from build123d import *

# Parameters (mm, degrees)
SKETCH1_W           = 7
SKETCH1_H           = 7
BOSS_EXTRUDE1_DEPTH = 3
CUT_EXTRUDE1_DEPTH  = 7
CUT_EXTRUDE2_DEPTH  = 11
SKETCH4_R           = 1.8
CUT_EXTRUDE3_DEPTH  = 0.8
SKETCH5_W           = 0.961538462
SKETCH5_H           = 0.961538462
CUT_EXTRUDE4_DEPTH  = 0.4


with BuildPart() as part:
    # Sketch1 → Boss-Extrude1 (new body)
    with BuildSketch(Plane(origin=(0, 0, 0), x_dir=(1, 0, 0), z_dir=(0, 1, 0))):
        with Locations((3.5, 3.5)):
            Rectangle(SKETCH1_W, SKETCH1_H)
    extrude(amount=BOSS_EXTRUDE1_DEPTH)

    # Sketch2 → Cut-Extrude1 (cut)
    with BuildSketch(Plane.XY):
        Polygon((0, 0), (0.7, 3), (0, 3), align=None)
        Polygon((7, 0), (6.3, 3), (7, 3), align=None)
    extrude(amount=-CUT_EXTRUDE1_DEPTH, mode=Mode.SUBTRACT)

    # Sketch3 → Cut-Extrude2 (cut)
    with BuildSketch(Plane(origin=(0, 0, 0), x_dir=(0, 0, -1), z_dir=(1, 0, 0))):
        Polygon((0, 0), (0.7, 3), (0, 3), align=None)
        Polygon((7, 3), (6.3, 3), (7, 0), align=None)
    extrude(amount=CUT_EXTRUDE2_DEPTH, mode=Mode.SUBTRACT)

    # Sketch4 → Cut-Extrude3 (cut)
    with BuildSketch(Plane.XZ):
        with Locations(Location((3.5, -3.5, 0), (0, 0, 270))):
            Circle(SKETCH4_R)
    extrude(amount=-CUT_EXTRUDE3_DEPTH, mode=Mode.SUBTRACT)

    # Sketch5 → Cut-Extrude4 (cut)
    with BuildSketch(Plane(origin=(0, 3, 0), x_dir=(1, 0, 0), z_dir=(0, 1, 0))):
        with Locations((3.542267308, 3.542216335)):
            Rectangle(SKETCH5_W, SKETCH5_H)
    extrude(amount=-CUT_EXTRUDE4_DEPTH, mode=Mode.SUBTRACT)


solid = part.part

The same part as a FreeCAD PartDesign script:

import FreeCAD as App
import Part
import Sketcher

V = App.Vector

doc = App.newDocument("Part")
params = doc.addObject("Spreadsheet::Sheet", "Params")
for row, (alias, value) in enumerate([
    ("sketch1_width", "7 mm"),
    ("pad1_length", "3 mm"),
    ("sketch2_height", "3 mm"),
    ("sketch2_width", "0.7 mm"),
    ("pocket1_length", "7 mm"),
    ("sketch3_width", "3 mm"),
    ("sketch3_height", "0.7 mm"),
    ("pocket2_length", "11 mm"),
    ("sketch4_diameter", "3.6 mm"),
    ("pocket3_length", "0.8 mm"),
    ("pocket4_length", "0.4 mm"),
], start=1):
    params.set(f"A{row}", alias)
    params.set(f"B{row}", "=" + value)
    params.setAlias(f"B{row}", alias)

body = doc.addObject("PartDesign::Body", "Body")

sketch1 = body.newObject("Sketcher::SketchObject", "Sketch")
sketch1.AttachmentSupport = (doc.getObject("XZ_Plane"), [""])
sketch1.MapMode = "FlatFace"
sketch1.addGeometry([
    Part.LineSegment(V(0, -7, 0), V(0, 0, 0)),
    Part.LineSegment(V(0, 0, 0), V(7, 0, 0)),
    Part.LineSegment(V(7, 0, 0), V(7, -7, 0)),
    Part.LineSegment(V(7, -7, 0), V(0, -7, 0)),
], False)
sketch1.addConstraint([
    Sketcher.Constraint("Coincident", 0, 2, 1, 1),
    Sketcher.Constraint("Coincident", 1, 2, 2, 1),
    Sketcher.Constraint("Coincident", 2, 2, 3, 1),
    Sketcher.Constraint("Coincident", 3, 2, 0, 1),
    Sketcher.Constraint("Vertical", 0),
    Sketcher.Constraint("Horizontal", 1),
    Sketcher.Constraint("Vertical", 2),
    Sketcher.Constraint("Horizontal", 3),
    Sketcher.Constraint("Coincident", 0, 2, -1, 1),
    Sketcher.Constraint("Equal", 3, 0),
    Sketcher.Constraint("DistanceX", 1, 1, 1, 2, 7.0),
])
sketch1.setExpression("Constraints[10]", "Params.sketch1_width")
pad1 = body.newObject("PartDesign::Pad", "Pad")
pad1.Profile = sketch1
pad1.setExpression("Length", "Params.pad1_length")
pad1.Reversed = True

sketch2 = body.newObject("Sketcher::SketchObject", "Sketch001")
sketch2.AttachmentSupport = (doc.getObject("XY_Plane"), [""])
sketch2.MapMode = "FlatFace"
sketch2.addGeometry([
    Part.LineSegment(V(0, 0, 0), V(0.7, 3, 0)),
    Part.LineSegment(V(0.7, 3, 0), V(0, 3, 0)),
    Part.LineSegment(V(0, 3, 0), V(0, 0, 0)),
    Part.LineSegment(V(6.3, 3, 0), V(7, 0, 0)),
    Part.LineSegment(V(7, 0, 0), V(7, 3, 0)),
    Part.LineSegment(V(7, 3, 0), V(6.3, 3, 0)),
], False)
sketch2.addConstraint([
    Sketcher.Constraint("Coincident", 0, 2, 1, 1),
    Sketcher.Constraint("Coincident", 1, 2, 2, 1),
    Sketcher.Constraint("Coincident", 2, 2, 0, 1),
    Sketcher.Constraint("Coincident", 3, 2, 4, 1),
    Sketcher.Constraint("Coincident", 4, 2, 5, 1),
    Sketcher.Constraint("Coincident", 5, 2, 3, 1),
    Sketcher.Constraint("Horizontal", 1),
    Sketcher.Constraint("Vertical", 2),
    Sketcher.Constraint("Vertical", 4),
    Sketcher.Constraint("Horizontal", 5),
    Sketcher.Constraint("Coincident", 2, 2, -1, 1),
    Sketcher.Constraint("PointOnObject", 3, 2, -1),
    Sketcher.Constraint("Horizontal", 1, 2, 4, 2),
    Sketcher.Constraint("Equal", 1, 5),
    Sketcher.Constraint("DistanceY", 2, 2, 2, 1, 3.0),
    Sketcher.Constraint("DistanceX", 1, 2, 1, 1, 0.7),
    Sketcher.Constraint("DistanceX", -1, 1, 3, 2, 7.0),
])
sketch2.setExpression("Constraints[14]", "Params.sketch2_height")
sketch2.setExpression("Constraints[15]", "Params.sketch2_width")
pocket1 = body.newObject("PartDesign::Pocket", "Pocket")
pocket1.Profile = sketch2
pocket1.setExpression("Length", "Params.pocket1_length")

sketch3 = body.newObject("Sketcher::SketchObject", "Sketch002")
sketch3.AttachmentSupport = (doc.getObject("YZ_Plane"), [""])
sketch3.MapMode = "FlatFace"
sketch3.addGeometry([
    Part.LineSegment(V(0, 0, 0), V(3, -0.7, 0)),
    Part.LineSegment(V(3, -0.7, 0), V(3, 0, 0)),
    Part.LineSegment(V(3, 0, 0), V(0, 0, 0)),
    Part.LineSegment(V(3, -7, 0), V(3, -6.3, 0)),
    Part.LineSegment(V(3, -6.3, 0), V(0, -7, 0)),
    Part.LineSegment(V(0, -7, 0), V(3, -7, 0)),
], False)
sketch3.addConstraint([
    Sketcher.Constraint("Coincident", 0, 2, 1, 1),
    Sketcher.Constraint("Coincident", 1, 2, 2, 1),
    Sketcher.Constraint("Coincident", 2, 2, 0, 1),
    Sketcher.Constraint("Coincident", 3, 2, 4, 1),
    Sketcher.Constraint("Coincident", 4, 2, 5, 1),
    Sketcher.Constraint("Coincident", 5, 2, 3, 1),
    Sketcher.Constraint("Vertical", 1),
    Sketcher.Constraint("Horizontal", 2),
    Sketcher.Constraint("Vertical", 3),
    Sketcher.Constraint("Horizontal", 5),
    Sketcher.Constraint("Coincident", 2, 2, -1, 1),
    Sketcher.Constraint("PointOnObject", 4, 2, -2),
    Sketcher.Constraint("Vertical", 1, 2, 3, 2),
    Sketcher.Constraint("Equal", 1, 3),
    Sketcher.Constraint("DistanceX", 2, 2, 2, 1, 3.0),
    Sketcher.Constraint("DistanceY", 1, 1, 1, 2, 0.7),
    Sketcher.Constraint("DistanceY", 4, 2, -1, 1, 7.0),
])
sketch3.setExpression("Constraints[14]", "Params.sketch3_width")
sketch3.setExpression("Constraints[15]", "Params.sketch3_height")
pocket2 = body.newObject("PartDesign::Pocket", "Pocket001")
pocket2.Profile = sketch3
pocket2.setExpression("Length", "Params.pocket2_length")
pocket2.Reversed = True

sketch4 = body.newObject("Sketcher::SketchObject", "Sketch003")
sketch4.AttachmentSupport = (doc.getObject("XZ_Plane"), [""])
sketch4.MapMode = "FlatFace"
sketch4.addGeometry(Part.Circle(V(3.5, -3.5, 0), V(0, 0, 1), 1.8), False)
sketch4.addConstraint([
    Sketcher.Constraint("Diameter", 0, 3.6),
    Sketcher.Constraint("DistanceX", -1, 1, 0, 3, 3.5),
    Sketcher.Constraint("DistanceY", 0, 3, -1, 1, 3.5),
])
sketch4.setExpression("Constraints[0]", "Params.sketch4_diameter")
pocket3 = body.newObject("PartDesign::Pocket", "Pocket002")
pocket3.Profile = sketch4
pocket3.setExpression("Length", "Params.pocket3_length")

sketch5 = body.newObject("Sketcher::SketchObject", "Sketch004")
sketch5.AttachmentSupport = (doc.getObject("XZ_Plane"), [""])
sketch5.MapMode = "FlatFace"
sketch5.AttachmentOffset = App.Placement(V(0, 0, -3), App.Rotation())
sketch5.addGeometry([
    Part.LineSegment(V(3.1, -4, 0), V(3.1, -3.1, 0)),
    Part.LineSegment(V(3.1, -3.1, 0), V(4, -3.1, 0)),
    Part.LineSegment(V(4, -3.1, 0), V(4, -4, 0)),
    Part.LineSegment(V(4, -4, 0), V(3.1, -4, 0)),
], False)
sketch5.addConstraint([
    Sketcher.Constraint("Coincident", 0, 2, 1, 1),
    Sketcher.Constraint("Coincident", 1, 2, 2, 1),
    Sketcher.Constraint("Coincident", 2, 2, 3, 1),
    Sketcher.Constraint("Coincident", 3, 2, 0, 1),
    Sketcher.Constraint("Vertical", 0),
    Sketcher.Constraint("Horizontal", 1),
    Sketcher.Constraint("Vertical", 2),
    Sketcher.Constraint("Horizontal", 3),
    Sketcher.Constraint("Equal", 3, 0),
    Sketcher.Constraint("DistanceX", 1, 1, 1, 2, 0.961538),
    Sketcher.Constraint("DistanceX", -1, 1, 0, 2, 3.061498),
    Sketcher.Constraint("DistanceY", 0, 2, -1, 1, 3.061447),
])
pocket4 = body.newObject("PartDesign::Pocket", "Pocket003")
pocket4.Profile = sketch5
pocket4.setExpression("Length", "Params.pocket4_length")
pocket4.Reversed = True

doc.recompute()
